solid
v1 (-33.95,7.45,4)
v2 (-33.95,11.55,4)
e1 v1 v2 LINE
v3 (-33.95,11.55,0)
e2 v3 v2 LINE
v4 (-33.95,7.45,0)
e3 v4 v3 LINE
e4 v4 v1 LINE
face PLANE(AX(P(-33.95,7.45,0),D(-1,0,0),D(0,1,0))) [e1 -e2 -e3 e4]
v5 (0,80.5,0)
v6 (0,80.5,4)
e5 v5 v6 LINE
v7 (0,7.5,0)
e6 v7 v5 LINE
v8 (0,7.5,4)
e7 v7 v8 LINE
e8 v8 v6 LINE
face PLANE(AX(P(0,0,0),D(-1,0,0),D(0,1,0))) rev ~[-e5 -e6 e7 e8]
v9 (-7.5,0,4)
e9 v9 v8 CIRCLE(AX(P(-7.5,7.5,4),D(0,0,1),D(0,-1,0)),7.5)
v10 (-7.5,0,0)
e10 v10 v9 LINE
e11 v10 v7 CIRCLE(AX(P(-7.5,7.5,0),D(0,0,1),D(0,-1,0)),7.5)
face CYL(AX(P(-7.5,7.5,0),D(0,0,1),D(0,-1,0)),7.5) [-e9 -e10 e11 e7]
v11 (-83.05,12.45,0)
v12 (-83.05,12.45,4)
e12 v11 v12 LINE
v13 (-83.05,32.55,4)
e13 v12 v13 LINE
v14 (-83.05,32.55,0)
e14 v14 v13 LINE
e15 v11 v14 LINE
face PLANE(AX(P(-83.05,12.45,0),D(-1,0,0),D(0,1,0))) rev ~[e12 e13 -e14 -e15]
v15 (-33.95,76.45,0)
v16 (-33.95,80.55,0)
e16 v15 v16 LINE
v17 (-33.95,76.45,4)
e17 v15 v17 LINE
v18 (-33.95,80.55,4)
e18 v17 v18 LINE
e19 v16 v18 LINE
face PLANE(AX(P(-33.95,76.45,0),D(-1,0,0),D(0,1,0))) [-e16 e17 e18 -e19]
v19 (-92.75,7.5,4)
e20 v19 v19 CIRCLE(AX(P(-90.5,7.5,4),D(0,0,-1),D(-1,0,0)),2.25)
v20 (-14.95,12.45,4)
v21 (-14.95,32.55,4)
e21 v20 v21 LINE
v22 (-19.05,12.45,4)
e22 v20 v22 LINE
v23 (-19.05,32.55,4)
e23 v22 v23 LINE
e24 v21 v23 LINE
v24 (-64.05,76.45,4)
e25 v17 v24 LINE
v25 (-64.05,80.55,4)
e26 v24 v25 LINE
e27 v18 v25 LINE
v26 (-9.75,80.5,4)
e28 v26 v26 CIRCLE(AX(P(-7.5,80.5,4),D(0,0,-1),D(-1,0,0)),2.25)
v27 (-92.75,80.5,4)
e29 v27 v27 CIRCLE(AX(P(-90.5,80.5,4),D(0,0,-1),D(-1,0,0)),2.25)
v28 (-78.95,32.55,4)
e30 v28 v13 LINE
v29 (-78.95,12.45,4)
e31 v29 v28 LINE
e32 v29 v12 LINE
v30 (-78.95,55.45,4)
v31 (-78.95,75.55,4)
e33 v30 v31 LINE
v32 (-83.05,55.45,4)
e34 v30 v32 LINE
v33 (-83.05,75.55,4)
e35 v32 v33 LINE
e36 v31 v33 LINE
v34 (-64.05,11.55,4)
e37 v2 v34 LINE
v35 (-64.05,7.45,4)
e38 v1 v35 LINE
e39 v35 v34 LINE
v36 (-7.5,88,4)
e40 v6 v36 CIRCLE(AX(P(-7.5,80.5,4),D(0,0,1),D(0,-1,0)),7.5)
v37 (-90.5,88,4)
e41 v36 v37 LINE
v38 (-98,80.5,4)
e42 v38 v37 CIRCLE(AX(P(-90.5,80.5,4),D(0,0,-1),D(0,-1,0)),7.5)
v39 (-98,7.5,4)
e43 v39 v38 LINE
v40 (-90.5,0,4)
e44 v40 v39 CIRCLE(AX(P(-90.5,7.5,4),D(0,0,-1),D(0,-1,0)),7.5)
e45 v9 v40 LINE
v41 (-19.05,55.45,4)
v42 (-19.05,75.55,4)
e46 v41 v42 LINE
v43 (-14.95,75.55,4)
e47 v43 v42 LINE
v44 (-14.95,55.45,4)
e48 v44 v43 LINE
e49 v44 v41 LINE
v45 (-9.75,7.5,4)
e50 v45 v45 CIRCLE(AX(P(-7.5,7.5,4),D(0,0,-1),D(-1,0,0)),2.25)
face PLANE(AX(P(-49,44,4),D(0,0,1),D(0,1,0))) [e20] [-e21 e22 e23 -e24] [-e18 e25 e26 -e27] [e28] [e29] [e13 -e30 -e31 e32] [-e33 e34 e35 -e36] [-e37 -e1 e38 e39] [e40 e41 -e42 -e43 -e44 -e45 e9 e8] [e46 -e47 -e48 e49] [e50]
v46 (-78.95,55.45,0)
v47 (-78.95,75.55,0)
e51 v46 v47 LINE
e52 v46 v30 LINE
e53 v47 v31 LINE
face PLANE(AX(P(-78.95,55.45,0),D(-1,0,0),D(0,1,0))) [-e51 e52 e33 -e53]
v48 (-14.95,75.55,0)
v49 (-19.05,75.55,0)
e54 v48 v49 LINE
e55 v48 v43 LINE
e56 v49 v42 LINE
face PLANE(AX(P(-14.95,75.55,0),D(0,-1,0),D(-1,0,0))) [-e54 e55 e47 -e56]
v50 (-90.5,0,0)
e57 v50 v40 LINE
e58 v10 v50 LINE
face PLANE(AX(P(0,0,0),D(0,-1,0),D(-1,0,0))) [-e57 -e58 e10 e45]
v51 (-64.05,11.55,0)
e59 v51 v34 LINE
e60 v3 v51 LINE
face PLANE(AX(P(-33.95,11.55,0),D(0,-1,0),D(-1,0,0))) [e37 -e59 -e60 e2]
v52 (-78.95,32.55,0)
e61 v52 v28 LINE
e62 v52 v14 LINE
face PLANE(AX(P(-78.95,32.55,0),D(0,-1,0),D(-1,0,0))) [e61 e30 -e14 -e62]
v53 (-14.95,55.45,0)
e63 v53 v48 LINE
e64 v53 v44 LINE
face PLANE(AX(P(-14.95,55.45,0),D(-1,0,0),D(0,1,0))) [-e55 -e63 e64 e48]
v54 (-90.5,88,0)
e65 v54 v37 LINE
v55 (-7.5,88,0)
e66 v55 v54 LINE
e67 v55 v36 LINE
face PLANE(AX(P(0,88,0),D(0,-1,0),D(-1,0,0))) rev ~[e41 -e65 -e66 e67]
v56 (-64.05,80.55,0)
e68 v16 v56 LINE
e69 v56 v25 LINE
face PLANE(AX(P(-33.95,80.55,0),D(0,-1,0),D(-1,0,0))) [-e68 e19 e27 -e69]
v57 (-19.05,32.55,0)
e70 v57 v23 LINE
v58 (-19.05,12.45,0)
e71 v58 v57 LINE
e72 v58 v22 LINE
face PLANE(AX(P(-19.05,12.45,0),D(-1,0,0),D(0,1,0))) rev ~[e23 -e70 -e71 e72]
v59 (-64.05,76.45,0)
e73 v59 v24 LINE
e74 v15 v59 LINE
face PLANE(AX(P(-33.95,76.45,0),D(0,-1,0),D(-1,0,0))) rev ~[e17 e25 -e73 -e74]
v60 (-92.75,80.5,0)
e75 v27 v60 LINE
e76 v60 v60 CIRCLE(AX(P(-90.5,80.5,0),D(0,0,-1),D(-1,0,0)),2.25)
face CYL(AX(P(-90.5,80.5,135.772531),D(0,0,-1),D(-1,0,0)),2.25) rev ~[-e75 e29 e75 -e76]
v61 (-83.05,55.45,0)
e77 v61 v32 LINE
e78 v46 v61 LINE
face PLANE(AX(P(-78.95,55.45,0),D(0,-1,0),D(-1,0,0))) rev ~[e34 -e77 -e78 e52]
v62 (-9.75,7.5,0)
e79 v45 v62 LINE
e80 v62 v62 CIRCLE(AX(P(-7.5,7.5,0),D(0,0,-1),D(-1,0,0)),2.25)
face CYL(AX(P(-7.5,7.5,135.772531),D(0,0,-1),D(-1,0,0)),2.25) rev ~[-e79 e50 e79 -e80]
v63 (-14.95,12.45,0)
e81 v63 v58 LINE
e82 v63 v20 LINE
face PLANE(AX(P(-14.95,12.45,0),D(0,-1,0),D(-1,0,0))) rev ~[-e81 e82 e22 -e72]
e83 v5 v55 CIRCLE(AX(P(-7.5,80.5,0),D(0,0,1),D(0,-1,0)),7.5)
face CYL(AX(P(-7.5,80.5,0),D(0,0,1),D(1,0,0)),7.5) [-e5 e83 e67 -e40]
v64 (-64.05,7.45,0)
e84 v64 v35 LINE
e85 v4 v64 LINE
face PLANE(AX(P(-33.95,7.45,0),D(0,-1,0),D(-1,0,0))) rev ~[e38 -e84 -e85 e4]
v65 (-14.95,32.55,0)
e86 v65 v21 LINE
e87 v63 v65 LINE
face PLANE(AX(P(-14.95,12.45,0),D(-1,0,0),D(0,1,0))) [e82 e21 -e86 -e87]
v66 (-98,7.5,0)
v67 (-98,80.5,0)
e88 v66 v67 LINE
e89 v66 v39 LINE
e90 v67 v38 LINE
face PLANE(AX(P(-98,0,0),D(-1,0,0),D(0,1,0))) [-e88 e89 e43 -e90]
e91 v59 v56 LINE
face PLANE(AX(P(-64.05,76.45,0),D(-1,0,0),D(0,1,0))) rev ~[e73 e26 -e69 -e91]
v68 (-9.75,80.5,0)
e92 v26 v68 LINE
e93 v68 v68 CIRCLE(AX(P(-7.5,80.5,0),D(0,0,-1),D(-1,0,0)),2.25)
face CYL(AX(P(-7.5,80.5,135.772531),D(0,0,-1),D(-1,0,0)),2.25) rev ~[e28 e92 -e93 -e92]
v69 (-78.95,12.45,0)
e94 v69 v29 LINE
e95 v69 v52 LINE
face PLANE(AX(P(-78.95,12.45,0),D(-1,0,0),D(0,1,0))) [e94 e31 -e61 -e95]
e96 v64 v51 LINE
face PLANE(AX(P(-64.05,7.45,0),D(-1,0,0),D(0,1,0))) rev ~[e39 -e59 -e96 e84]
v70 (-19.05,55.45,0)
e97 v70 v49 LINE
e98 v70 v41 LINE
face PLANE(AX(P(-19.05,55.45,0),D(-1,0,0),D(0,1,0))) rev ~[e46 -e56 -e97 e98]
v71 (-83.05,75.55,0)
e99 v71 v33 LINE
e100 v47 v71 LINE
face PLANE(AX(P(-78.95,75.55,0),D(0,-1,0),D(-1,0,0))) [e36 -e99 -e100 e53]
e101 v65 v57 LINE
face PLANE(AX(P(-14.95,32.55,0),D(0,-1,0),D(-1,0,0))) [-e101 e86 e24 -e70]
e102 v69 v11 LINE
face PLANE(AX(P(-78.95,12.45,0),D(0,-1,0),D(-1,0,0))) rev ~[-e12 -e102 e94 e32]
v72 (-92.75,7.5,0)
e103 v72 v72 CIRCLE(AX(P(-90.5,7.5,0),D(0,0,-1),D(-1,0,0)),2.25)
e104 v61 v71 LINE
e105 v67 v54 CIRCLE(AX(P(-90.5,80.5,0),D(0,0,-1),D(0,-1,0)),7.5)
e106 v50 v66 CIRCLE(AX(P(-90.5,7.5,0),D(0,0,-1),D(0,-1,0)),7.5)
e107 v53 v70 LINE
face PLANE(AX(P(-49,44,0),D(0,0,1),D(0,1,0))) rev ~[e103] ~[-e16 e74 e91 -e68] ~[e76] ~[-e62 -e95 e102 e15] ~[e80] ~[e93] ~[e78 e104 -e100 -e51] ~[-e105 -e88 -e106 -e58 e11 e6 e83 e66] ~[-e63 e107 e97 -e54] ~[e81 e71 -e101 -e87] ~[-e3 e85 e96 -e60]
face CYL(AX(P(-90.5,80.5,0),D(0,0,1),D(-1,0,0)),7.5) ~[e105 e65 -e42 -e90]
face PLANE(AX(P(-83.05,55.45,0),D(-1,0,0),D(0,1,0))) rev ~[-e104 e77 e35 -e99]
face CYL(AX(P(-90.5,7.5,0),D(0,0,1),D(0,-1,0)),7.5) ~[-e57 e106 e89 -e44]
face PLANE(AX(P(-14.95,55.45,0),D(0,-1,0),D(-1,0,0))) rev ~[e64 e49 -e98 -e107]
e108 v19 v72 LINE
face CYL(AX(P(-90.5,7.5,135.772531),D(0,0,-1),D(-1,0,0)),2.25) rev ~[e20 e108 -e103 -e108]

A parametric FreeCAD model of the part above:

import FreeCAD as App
import Part
import Sketcher
from FreeCAD import Vector
Q = App.Units.Quantity


def edges_at(feature, points):
    """Names of the edges that pass closest to the given points."""
    edges = feature.Shape.Edges
    near = lambda p: min(range(len(edges)), key=lambda i: edges[i].distToShape(Part.Vertex(*p))[0])
    return sorted({f"Edge{near(p) + 1}" for p in points})


def add_polygon(sketch, points):
    """Adds a closed chain of lines whose ends are joined by coincident constraints."""
    first, n = sketch.GeometryCount, len(points)
    for a, b in zip(points, points[1:] + points[:1]):
        sketch.addGeometry(Part.LineSegment(App.Vector(*a, 0), App.Vector(*b, 0)), False)
    for i in range(n):
        sketch.addConstraint(Sketcher.Constraint("Coincident", first + i, 2, first + (i + 1) % n, 1))

doc = App.newDocument("Part")
body = doc.addObject("PartDesign::Body", "Body")

sketch1 = body.newObject("Sketcher::SketchObject", "Sketch")
sketch1.AttachmentSupport = (doc.getObject("XY_Plane"), [""])
sketch1.MapMode = "FlatFace"
add_polygon(sketch1, [(-98, 0), (0, 0), (0, 88), (-98, 88)])
add_polygon(sketch1, [(-14.9, 32.5), (-14.9, 12.4), (-19.1, 12.4), (-19.1, 32.5)])
add_polygon(sketch1, [(-14.9, 75.5), (-14.9, 55.5), (-19.1, 55.5), (-19.1, 75.5)])
add_polygon(sketch1, [(-34, 11.6), (-34, 7.5), (-64, 7.5), (-64, 11.6)])
add_polygon(sketch1, [(-79, 32.5), (-79, 12.4), (-83, 12.4), (-83, 32.5)])
add_polygon(sketch1, [(-34, 80.5), (-34, 76.5), (-64, 76.5), (-64, 80.5)])
add_polygon(sketch1, [(-79, 75.5), (-79, 55.5), (-83, 55.5), (-83, 75.5)])
sketch1.addConstraint([
    Sketcher.Constraint("Horizontal", 0),
    Sketcher.Constraint("Vertical", 1),
    Sketcher.Constraint("Horizontal", 2),
    Sketcher.Constraint("Vertical", 3),
    Sketcher.Constraint("Vertical", 4),
    Sketcher.Constraint("Horizontal", 5),
    Sketcher.Constraint("Vertical", 6),
    Sketcher.Constraint("Horizontal", 7),
    Sketcher.Constraint("Vertical", 8),
    Sketcher.Constraint("Horizontal", 9),
    Sketcher.Constraint("Vertical", 10),
    Sketcher.Constraint("Horizontal", 11),
    Sketcher.Constraint("Vertical", 12),
    Sketcher.Constraint("Horizontal", 13),
    Sketcher.Constraint("Vertical", 14),
    Sketcher.Constraint("Horizontal", 15),
    Sketcher.Constraint("Vertical", 16),
    Sketcher.Constraint("Horizontal", 17),
    Sketcher.Constraint("Vertical", 18),
    Sketcher.Constraint("Horizontal", 19),
    Sketcher.Constraint("Vertical", 20),
    Sketcher.Constraint("Horizontal", 21),
    Sketcher.Constraint("Vertical", 22),
    Sketcher.Constraint("Horizontal", 23),
    Sketcher.Constraint("Vertical", 24),
    Sketcher.Constraint("Horizontal", 25),
    Sketcher.Constraint("Vertical", 26),
    Sketcher.Constraint("Horizontal", 27),
    Sketcher.Constraint("Coincident", 0, 2, -1, 1),
    Sketcher.Constraint("Horizontal", 5, 2, 16, 2),
    Sketcher.Constraint("Horizontal", 7, 2, 18, 2),
    Sketcher.Constraint("Horizontal", 9, 2, 24, 2),
    Sketcher.Constraint("Horizontal", 11, 2, 26, 2),
    Sketcher.Constraint("Vertical", 7, 2, 8, 2),
    Sketcher.Constraint("Vertical", 6, 2, 9, 2),
    Sketcher.Constraint("Vertical", 15, 2, 20, 2),
    Sketcher.Constraint("Vertical", 14, 2, 21, 2),
    Sketcher.Constraint("Vertical", 19, 2, 24, 2),
    Sketcher.Constraint("Vertical", 18, 2, 25, 2),
    Sketcher.Constraint("Equal", 11, 17),
    Sketcher.Constraint("Equal", 6, 8),
    Sketcher.Constraint("Equal", 27, 12),
    Sketcher.Constraint("Equal", 14, 20),
    Sketcher.Constraint("DistanceX", 0, 1, 0, 2, Q("98 mm")),
    Sketcher.Constraint("DistanceY", 1, 1, 1, 2, Q("88 mm")),
    Sketcher.Constraint("DistanceX", 5, 2, 5, 1, Q("4.1 mm")),
    Sketcher.Constraint("DistanceX", 13, 2, 13, 1, Q("30.1 mm")),
    Sketcher.Constraint("DistanceY", 4, 2, 4, 1, Q("20.1 mm")),
    Sketcher.Constraint("DistanceY", 4, 2, 8, 2, Q("43 mm")),
    Sketcher.Constraint("DistanceY", 12, 2, 5, 2, Q("5 mm")),
    Sketcher.Constraint("DistanceX", 12, 2, 4, 2, Q("19 mm")),
    Sketcher.Constraint("DistanceX", 16, 2, 15, 2, Q("45 mm")),
    Sketcher.Constraint("DistanceY", 9, 2, 20, 2, Q("21 mm")),
    Sketcher.Constraint("DistanceX", 4, 2, -1, 1, Q("14.95 mm")),
    Sketcher.Constraint("DistanceY", -1, 1, 4, 2, Q("12.45 mm")),
])
pad1 = body.newObject("PartDesign::Pad", "Pad")
pad1.Profile = sketch1
pad1.Length = 4

sketch2 = body.newObject("Sketcher::SketchObject", "Sketch001")
sketch2.AttachmentSupport = (doc.getObject("XY_Plane"), [""])
sketch2.MapMode = "FlatFace"
sketch2.AttachmentOffset = App.Placement(Vector(0, 0, 4), App.Rotation())
sketch2.addGeometry([
    Part.Circle(Vector(-90.5, 80.5, 0), Vector(0, 0, 1), 2.2),
    Part.Circle(Vector(-7.5, 80.5, 0), Vector(0, 0, 1), 2.2),
    Part.Circle(Vector(-7.5, 7.5, 0), Vector(0, 0, 1), 2.2),
    Part.Circle(Vector(-90.5, 7.5, 0), Vector(0, 0, 1), 2.2),
], False)
sketch2.addConstraint([
    Sketcher.Constraint("Equal", 0, 1),
    Sketcher.Constraint("Equal", 1, 2),
    Sketcher.Constraint("Equal", 2, 3),
    Sketcher.Constraint("Horizontal", 0, 3, 1, 3),
    Sketcher.Constraint("Horizontal", 2, 3, 3, 3),
    Sketcher.Constraint("Vertical", 1, 3, 2, 3),
    Sketcher.Constraint("Vertical", 0, 3, 3, 3),
    Sketcher.Constraint("Diameter", 0, Q("4.5 mm")),
    Sketcher.Constraint("DistanceX", 0, 3, 1, 3, Q("83 mm")),
    Sketcher.Constraint("DistanceY", 2, 3, 1, 3, Q("73 mm")),
    Sketcher.Constraint("DistanceX", 0, 3, -1, 1, Q("90.5 mm")),
    Sketcher.Constraint("DistanceY", -1, 1, 0, 3, Q("80.5 mm")),
])
doc.recompute()
hole = body.newObject("PartDesign::Hole", "Hole")
hole.Profile = sketch2
hole.ThreadType = "None"
hole.Diameter = 4.5
hole.DepthType = "ThroughAll"
doc.recompute()

fillet = body.newObject("PartDesign::Fillet", "Fillet")
fillet.Base = (hole, edges_at(hole, [
    (-98, 0, 2),
    (-98, 88, 2),
    (0, 88, 2),
    (0, 0, 2),
]))
fillet.Radius = 7.5

doc.recompute()
